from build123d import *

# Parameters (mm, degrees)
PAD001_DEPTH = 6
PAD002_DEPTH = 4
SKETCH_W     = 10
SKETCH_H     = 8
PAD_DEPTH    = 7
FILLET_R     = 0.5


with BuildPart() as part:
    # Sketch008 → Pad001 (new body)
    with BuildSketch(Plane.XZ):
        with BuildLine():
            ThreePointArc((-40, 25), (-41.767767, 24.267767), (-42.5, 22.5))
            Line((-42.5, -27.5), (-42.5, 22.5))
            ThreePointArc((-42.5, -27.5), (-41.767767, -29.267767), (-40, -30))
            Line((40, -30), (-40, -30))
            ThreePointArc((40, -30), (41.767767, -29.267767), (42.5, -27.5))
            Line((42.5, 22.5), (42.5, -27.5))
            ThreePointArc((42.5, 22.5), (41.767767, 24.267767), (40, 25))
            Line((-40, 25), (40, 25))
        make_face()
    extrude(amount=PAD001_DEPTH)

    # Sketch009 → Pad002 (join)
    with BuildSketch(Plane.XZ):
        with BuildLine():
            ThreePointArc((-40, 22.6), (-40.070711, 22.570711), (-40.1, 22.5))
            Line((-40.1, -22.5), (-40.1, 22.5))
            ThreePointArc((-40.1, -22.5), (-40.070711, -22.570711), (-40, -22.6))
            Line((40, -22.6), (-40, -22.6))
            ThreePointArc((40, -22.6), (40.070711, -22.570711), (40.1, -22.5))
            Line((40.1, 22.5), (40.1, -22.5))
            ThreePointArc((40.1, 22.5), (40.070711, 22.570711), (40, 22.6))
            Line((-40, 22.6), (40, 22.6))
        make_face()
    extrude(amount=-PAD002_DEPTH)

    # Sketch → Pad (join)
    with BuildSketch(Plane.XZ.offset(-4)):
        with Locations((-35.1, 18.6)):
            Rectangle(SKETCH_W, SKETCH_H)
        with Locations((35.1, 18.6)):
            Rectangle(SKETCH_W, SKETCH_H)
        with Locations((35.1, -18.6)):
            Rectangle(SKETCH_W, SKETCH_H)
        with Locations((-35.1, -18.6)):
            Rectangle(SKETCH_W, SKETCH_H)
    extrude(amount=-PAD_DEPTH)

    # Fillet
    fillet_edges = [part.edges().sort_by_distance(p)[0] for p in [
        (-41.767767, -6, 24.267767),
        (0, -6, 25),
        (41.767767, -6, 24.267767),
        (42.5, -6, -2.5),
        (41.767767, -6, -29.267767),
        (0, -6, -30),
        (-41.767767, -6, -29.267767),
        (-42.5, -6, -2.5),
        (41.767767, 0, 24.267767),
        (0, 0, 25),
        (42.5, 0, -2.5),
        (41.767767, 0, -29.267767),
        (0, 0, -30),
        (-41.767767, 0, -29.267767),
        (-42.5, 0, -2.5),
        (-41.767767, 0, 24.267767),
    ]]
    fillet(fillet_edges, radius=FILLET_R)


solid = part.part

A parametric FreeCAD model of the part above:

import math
import FreeCAD as App
import Part
import Sketcher
Q = App.Units.Quantity


def edges_at(feature, points):
    """Names of the edges that pass closest to the given points."""
    edges = feature.Shape.Edges
    near = lambda p: min(range(len(edges)), key=lambda i: edges[i].distToShape(Part.Vertex(*p))[0])
    return sorted({f"Edge{near(p) + 1}" for p in points})

doc = App.newDocument("Part")
body = doc.addObject("PartDesign::Body", "Body")

sketch1 = body.newObject("Sketcher::SketchObject", "Sketch")
sketch1.AttachmentSupport = (doc.getObject("XZ_Plane"), [""])
sketch1.MapMode = "FlatFace"
sketch1.addGeometry([
    Part.ArcOfCircle(Part.Circle(App.Vector(-40, 22.5, 0), App.Vector(0, 0, 1), 2.5), math.radians(90), math.radians(180)),
    Part.LineSegment(App.Vector(-42.5, 22.5, 0), App.Vector(-42.5, -27.5, 0)),
    Part.ArcOfCircle(Part.Circle(App.Vector(-40, -27.5, 0), App.Vector(0, 0, 1), 2.5), math.radians(180), math.radians(270)),
    Part.LineSegment(App.Vector(-40, -30, 0), App.Vector(40, -30, 0)),
    Part.ArcOfCircle(Part.Circle(App.Vector(40, -27.5, 0), App.Vector(0, 0, 1), 2.5), math.radians(-90), math.radians(0)),
    Part.LineSegment(App.Vector(42.5, -27.5, 0), App.Vector(42.5, 22.5, 0)),
    Part.ArcOfCircle(Part.Circle(App.Vector(40, 22.5, 0), App.Vector(0, 0, 1), 2.5), math.radians(0), math.radians(90)),
    Part.LineSegment(App.Vector(40, 25, 0), App.Vector(-40, 25, 0)),
], False)
sketch1.addConstraint([
    Sketcher.Constraint("Tangent", 0, 2, 1, 1),
    Sketcher.Constraint("Tangent", 1, 2, 2, 1),
    Sketcher.Constraint("Tangent", 2, 2, 3, 1),
    Sketcher.Constraint("Tangent", 3, 2, 4, 1),
    Sketcher.Constraint("Tangent", 4, 2, 5, 1),
    Sketcher.Constraint("Tangent", 5, 2, 6, 1),
    Sketcher.Constraint("Tangent", 6, 2, 7, 1),
    Sketcher.Constraint("Tangent", 7, 2, 0, 1),
    Sketcher.Constraint("Vertical", 1),
    Sketcher.Constraint("Horizontal", 3),
    Sketcher.Constraint("Vertical", 5),
    Sketcher.Constraint("Horizontal", 7),
    Sketcher.Constraint("Equal", 0, 2),
    Sketcher.Constraint("Equal", 2, 4),
    Sketcher.Constraint("Equal", 4, 6),
    Sketcher.Constraint("Radius", 0, Q("2.5 mm")),
    Sketcher.Constraint("DistanceX", 3, 1, 3, 2, Q("80 mm")),
    Sketcher.Constraint("DistanceY", 1, 2, 1, 1, Q("50 mm")),
    Sketcher.Constraint("DistanceX", 0, 3, -1, 1, Q("40 mm")),
    Sketcher.Constraint("DistanceY", 2, 2, -1, 1, Q("30 mm")),
])
pad1 = body.newObject("PartDesign::Pad", "Pad")
pad1.Profile = sketch1
pad1.Length = 6

sketch2 = body.newObject("Sketcher::SketchObject", "Sketch001")
sketch2.AttachmentSupport = (doc.getObject("XZ_Plane"), [""])
sketch2.MapMode = "FlatFace"
sketch2.addGeometry([
    Part.ArcOfCircle(Part.Circle(App.Vector(-40, 22.5, 0), App.Vector(0, 0, 1), 0.1), math.radians(90), math.radians(180)),
    Part.LineSegment(App.Vector(-40.1, 22.5, 0), App.Vector(-40.1, -22.5, 0)),
    Part.ArcOfCircle(Part.Circle(App.Vector(-40, -22.5, 0), App.Vector(0, 0, 1), 0.1), math.radians(180), math.radians(270)),
    Part.LineSegment(App.Vector(-40, -22.6, 0), App.Vector(40, -22.6, 0)),
    Part.ArcOfCircle(Part.Circle(App.Vector(40, -22.5, 0), App.Vector(0, 0, 1), 0.1), math.radians(-90), math.radians(0)),
    Part.LineSegment(App.Vector(40.1, -22.5, 0), App.Vector(40.1, 22.5, 0)),
    Part.ArcOfCircle(Part.Circle(App.Vector(40, 22.5, 0), App.Vector(0, 0, 1), 0.1), math.radians(0), math.radians(90)),
    Part.LineSegment(App.Vector(40, 22.6, 0), App.Vector(-40, 22.6, 0)),
], False)
sketch2.addConstraint([
    Sketcher.Constraint("Coincident", 0, 2, 1, 1),
    Sketcher.Constraint("Coincident", 1, 2, 2, 1),
    Sketcher.Constraint("Coincident", 2, 2, 3, 1),
    Sketcher.Constraint("Coincident", 3, 2, 4, 1),
    Sketcher.Constraint("Coincident", 4, 2, 5, 1),
    Sketcher.Constraint("Coincident", 5, 2, 6, 1),
    Sketcher.Constraint("Coincident", 6, 2, 7, 1),
    Sketcher.Constraint("Coincident", 7, 2, 0, 1),
    Sketcher.Constraint("Vertical", 1),
    Sketcher.Constraint("Horizontal", 3),
    Sketcher.Constraint("Vertical", 5),
    Sketcher.Constraint("Horizontal", 7),
    Sketcher.Constraint("Equal", 0, 2),
    Sketcher.Constraint("Equal", 2, 4),
    Sketcher.Constraint("Equal", 4, 6),
    Sketcher.Constraint("Symmetric", 0, 3, 4, 3, -1, 1),
    Sketcher.Constraint("Horizontal", 6, 3, 0, 2),
    Sketcher.Constraint("Horizontal", 4, 3, 1, 2),
    Sketcher.Constraint("Horizontal", 1, 2, 4, 2),
    Sketcher.Constraint("Horizontal", 0, 2, 5, 2),
    Sketcher.Constraint("Vertical", 0, 3, 2, 2),
    Sketcher.Constraint("Vertical", 6, 3, 3, 2),
    Sketcher.Constraint("Vertical", 3, 2, 6, 2),
    Sketcher.Constraint("Vertical", 2, 2, 7, 2),
    Sketcher.Constraint("Radius", 0, Q("0.099999 mm")),
    Sketcher.Constraint("DistanceX", 3, 1, 3, 2, Q("80 mm")),
    Sketcher.Constraint("DistanceY", 1, 2, 1, 1, Q("45 mm")),
])
pad2 = body.newObject("PartDesign::Pad", "Pad001")
pad2.Profile = sketch2
pad2.Length = 4
pad2.Reversed = True

sketch3 = body.newObject("Sketcher::SketchObject", "Sketch002")
sketch3.AttachmentSupport = (doc.getObject("XZ_Plane"), [""])
sketch3.MapMode = "FlatFace"
sketch3.AttachmentOffset = App.Placement(App.Vector(0, 0, -4), App.Rotation())
sketch3.addGeometry([
    Part.LineSegment(App.Vector(-40, 23, 0), App.Vector(-40, 15, 0)),
    Part.LineSegment(App.Vector(-40, 15, 0), App.Vector(-30, 15, 0)),
    Part.LineSegment(App.Vector(-30, 15, 0), App.Vector(-30, 23, 0)),
    Part.LineSegment(App.Vector(-30, 23, 0), App.Vector(-40, 23, 0)),
    Part.LineSegment(App.Vector(30, 23, 0), App.Vector(30, 15, 0)),
    Part.LineSegment(App.Vector(30, 15, 0), App.Vector(40, 15, 0)),
    Part.LineSegment(App.Vector(40, 15, 0), App.Vector(40, 23, 0)),
    Part.LineSegment(App.Vector(40, 23, 0), App.Vector(30, 23, 0)),
    Part.LineSegment(App.Vector(30, -15, 0), App.Vector(30, -23, 0)),
    Part.LineSegment(App.Vector(30, -23, 0), App.Vector(40, -23, 0)),
    Part.LineSegment(App.Vector(40, -23, 0), App.Vector(40, -15, 0)),
    Part.LineSegment(App.Vector(40, -15, 0), App.Vector(30, -15, 0)),
    Part.LineSegment(App.Vector(-40, -15, 0), App.Vector(-40, -23, 0)),
    Part.LineSegment(App.Vector(-40, -23, 0), App.Vector(-30, -23, 0)),
    Part.LineSegment(App.Vector(-30, -23, 0), App.Vector(-30, -15, 0)),
    Part.LineSegment(App.Vector(-30, -15, 0), App.Vector(-40, -15, 0)),
], False)
sketch3.addConstraint([
    Sketcher.Constraint("Coincident", 0, 2, 1, 1),
    Sketcher.Constraint("Coincident", 1, 2, 2, 1),
    Sketcher.Constraint("Coincident", 2, 2, 3, 1),
    Sketcher.Constraint("Coincident", 3, 2, 0, 1),
    Sketcher.Constraint("Coincident", 4, 2, 5, 1),
    Sketcher.Constraint("Coincident", 5, 2, 6, 1),
    Sketcher.Constraint("Coincident", 6, 2, 7, 1),
    Sketcher.Constraint("Coincident", 7, 2, 4, 1),
    Sketcher.Constraint("Coincident", 8, 2, 9, 1),
    Sketcher.Constraint("Coincident", 9, 2, 10, 1),
    Sketcher.Constraint("Coincident", 10, 2, 11, 1),
    Sketcher.Constraint("Coincident", 11, 2, 8, 1),
    Sketcher.Constraint("Coincident", 12, 2, 13, 1),
    Sketcher.Constraint("Coincident", 13, 2, 14, 1),
    Sketcher.Constraint("Coincident", 14, 2, 15, 1),
    Sketcher.Constraint("Coincident", 15, 2, 12, 1),
    Sketcher.Constraint("Vertical", 0),
    Sketcher.Constraint("Horizontal", 1),
    Sketcher.Constraint("Vertical", 2),
    Sketcher.Constraint("Horizontal", 3),
    Sketcher.Constraint("Vertical", 4),
    Sketcher.Constraint("Horizontal", 5),
    Sketcher.Constraint("Vertical", 6),
    Sketcher.Constraint("Horizontal", 7),
    Sketcher.Constraint("Vertical", 8),
    Sketcher.Constraint("Horizontal", 9),
    Sketcher.Constraint("Vertical", 10),
    Sketcher.Constraint("Horizontal", 11),
    Sketcher.Constraint("Vertical", 12),
    Sketcher.Constraint("Horizontal", 13),
    Sketcher.Constraint("Vertical", 14),
    Sketcher.Constraint("Horizontal", 15),
    Sketcher.Constraint("Symmetric", 2, 2, 8, 2, -1, 1),
    Sketcher.Constraint("Symmetric", 0, 2, 10, 2, -1, 1),
    Sketcher.Constraint("Symmetric", 6, 2, 12, 2, -1, 1),
    Sketcher.Constraint("Symmetric", 4, 2, 14, 2, -1, 1),
    Sketcher.Constraint("Symmetric", 1, 2, 4, 2, -2),
    Sketcher.Constraint("Symmetric", 3, 2, 6, 2, -2),
    Sketcher.Constraint("DistanceX", 1, 1, 1, 2, Q("10 mm")),
    Sketcher.Constraint("DistanceY", 0, 2, 0, 1, Q("8 mm")),
    Sketcher.Constraint("DistanceX", 0, 2, -1, 1, Q("40.1 mm")),
    Sketcher.Constraint("DistanceY", -1, 1, 0, 2, Q("14.6 mm")),
])
pad3 = body.newObject("PartDesign::Pad", "Pad002")
pad3.Profile = sketch3
pad3.Length = 7
pad3.Reversed = True
doc.recompute()

fillet = body.newObject("PartDesign::Fillet", "Fillet")
fillet.Base = (pad3, edges_at(pad3, [
    (-41.768, -6, 24.268),
    (0, -6, 25),
    (41.768, -6, 24.268),
    (42.5, -6, -2.5),
    (41.768, -6, -29.268),
    (0, -6, -30),
    (-41.768, -6, -29.268),
    (-42.5, -6, -2.5),
    (41.768, 0, 24.268),
    (0, 0, 25),
    (42.5, 0, -2.5),
    (41.768, 0, -29.268),
    (0, 0, -30),
    (-41.768, 0, -29.268),
    (-42.5, 0, -2.5),
    (-41.768, 0, 24.268),
]))
fillet.Radius = 0.5

doc.recompute()
